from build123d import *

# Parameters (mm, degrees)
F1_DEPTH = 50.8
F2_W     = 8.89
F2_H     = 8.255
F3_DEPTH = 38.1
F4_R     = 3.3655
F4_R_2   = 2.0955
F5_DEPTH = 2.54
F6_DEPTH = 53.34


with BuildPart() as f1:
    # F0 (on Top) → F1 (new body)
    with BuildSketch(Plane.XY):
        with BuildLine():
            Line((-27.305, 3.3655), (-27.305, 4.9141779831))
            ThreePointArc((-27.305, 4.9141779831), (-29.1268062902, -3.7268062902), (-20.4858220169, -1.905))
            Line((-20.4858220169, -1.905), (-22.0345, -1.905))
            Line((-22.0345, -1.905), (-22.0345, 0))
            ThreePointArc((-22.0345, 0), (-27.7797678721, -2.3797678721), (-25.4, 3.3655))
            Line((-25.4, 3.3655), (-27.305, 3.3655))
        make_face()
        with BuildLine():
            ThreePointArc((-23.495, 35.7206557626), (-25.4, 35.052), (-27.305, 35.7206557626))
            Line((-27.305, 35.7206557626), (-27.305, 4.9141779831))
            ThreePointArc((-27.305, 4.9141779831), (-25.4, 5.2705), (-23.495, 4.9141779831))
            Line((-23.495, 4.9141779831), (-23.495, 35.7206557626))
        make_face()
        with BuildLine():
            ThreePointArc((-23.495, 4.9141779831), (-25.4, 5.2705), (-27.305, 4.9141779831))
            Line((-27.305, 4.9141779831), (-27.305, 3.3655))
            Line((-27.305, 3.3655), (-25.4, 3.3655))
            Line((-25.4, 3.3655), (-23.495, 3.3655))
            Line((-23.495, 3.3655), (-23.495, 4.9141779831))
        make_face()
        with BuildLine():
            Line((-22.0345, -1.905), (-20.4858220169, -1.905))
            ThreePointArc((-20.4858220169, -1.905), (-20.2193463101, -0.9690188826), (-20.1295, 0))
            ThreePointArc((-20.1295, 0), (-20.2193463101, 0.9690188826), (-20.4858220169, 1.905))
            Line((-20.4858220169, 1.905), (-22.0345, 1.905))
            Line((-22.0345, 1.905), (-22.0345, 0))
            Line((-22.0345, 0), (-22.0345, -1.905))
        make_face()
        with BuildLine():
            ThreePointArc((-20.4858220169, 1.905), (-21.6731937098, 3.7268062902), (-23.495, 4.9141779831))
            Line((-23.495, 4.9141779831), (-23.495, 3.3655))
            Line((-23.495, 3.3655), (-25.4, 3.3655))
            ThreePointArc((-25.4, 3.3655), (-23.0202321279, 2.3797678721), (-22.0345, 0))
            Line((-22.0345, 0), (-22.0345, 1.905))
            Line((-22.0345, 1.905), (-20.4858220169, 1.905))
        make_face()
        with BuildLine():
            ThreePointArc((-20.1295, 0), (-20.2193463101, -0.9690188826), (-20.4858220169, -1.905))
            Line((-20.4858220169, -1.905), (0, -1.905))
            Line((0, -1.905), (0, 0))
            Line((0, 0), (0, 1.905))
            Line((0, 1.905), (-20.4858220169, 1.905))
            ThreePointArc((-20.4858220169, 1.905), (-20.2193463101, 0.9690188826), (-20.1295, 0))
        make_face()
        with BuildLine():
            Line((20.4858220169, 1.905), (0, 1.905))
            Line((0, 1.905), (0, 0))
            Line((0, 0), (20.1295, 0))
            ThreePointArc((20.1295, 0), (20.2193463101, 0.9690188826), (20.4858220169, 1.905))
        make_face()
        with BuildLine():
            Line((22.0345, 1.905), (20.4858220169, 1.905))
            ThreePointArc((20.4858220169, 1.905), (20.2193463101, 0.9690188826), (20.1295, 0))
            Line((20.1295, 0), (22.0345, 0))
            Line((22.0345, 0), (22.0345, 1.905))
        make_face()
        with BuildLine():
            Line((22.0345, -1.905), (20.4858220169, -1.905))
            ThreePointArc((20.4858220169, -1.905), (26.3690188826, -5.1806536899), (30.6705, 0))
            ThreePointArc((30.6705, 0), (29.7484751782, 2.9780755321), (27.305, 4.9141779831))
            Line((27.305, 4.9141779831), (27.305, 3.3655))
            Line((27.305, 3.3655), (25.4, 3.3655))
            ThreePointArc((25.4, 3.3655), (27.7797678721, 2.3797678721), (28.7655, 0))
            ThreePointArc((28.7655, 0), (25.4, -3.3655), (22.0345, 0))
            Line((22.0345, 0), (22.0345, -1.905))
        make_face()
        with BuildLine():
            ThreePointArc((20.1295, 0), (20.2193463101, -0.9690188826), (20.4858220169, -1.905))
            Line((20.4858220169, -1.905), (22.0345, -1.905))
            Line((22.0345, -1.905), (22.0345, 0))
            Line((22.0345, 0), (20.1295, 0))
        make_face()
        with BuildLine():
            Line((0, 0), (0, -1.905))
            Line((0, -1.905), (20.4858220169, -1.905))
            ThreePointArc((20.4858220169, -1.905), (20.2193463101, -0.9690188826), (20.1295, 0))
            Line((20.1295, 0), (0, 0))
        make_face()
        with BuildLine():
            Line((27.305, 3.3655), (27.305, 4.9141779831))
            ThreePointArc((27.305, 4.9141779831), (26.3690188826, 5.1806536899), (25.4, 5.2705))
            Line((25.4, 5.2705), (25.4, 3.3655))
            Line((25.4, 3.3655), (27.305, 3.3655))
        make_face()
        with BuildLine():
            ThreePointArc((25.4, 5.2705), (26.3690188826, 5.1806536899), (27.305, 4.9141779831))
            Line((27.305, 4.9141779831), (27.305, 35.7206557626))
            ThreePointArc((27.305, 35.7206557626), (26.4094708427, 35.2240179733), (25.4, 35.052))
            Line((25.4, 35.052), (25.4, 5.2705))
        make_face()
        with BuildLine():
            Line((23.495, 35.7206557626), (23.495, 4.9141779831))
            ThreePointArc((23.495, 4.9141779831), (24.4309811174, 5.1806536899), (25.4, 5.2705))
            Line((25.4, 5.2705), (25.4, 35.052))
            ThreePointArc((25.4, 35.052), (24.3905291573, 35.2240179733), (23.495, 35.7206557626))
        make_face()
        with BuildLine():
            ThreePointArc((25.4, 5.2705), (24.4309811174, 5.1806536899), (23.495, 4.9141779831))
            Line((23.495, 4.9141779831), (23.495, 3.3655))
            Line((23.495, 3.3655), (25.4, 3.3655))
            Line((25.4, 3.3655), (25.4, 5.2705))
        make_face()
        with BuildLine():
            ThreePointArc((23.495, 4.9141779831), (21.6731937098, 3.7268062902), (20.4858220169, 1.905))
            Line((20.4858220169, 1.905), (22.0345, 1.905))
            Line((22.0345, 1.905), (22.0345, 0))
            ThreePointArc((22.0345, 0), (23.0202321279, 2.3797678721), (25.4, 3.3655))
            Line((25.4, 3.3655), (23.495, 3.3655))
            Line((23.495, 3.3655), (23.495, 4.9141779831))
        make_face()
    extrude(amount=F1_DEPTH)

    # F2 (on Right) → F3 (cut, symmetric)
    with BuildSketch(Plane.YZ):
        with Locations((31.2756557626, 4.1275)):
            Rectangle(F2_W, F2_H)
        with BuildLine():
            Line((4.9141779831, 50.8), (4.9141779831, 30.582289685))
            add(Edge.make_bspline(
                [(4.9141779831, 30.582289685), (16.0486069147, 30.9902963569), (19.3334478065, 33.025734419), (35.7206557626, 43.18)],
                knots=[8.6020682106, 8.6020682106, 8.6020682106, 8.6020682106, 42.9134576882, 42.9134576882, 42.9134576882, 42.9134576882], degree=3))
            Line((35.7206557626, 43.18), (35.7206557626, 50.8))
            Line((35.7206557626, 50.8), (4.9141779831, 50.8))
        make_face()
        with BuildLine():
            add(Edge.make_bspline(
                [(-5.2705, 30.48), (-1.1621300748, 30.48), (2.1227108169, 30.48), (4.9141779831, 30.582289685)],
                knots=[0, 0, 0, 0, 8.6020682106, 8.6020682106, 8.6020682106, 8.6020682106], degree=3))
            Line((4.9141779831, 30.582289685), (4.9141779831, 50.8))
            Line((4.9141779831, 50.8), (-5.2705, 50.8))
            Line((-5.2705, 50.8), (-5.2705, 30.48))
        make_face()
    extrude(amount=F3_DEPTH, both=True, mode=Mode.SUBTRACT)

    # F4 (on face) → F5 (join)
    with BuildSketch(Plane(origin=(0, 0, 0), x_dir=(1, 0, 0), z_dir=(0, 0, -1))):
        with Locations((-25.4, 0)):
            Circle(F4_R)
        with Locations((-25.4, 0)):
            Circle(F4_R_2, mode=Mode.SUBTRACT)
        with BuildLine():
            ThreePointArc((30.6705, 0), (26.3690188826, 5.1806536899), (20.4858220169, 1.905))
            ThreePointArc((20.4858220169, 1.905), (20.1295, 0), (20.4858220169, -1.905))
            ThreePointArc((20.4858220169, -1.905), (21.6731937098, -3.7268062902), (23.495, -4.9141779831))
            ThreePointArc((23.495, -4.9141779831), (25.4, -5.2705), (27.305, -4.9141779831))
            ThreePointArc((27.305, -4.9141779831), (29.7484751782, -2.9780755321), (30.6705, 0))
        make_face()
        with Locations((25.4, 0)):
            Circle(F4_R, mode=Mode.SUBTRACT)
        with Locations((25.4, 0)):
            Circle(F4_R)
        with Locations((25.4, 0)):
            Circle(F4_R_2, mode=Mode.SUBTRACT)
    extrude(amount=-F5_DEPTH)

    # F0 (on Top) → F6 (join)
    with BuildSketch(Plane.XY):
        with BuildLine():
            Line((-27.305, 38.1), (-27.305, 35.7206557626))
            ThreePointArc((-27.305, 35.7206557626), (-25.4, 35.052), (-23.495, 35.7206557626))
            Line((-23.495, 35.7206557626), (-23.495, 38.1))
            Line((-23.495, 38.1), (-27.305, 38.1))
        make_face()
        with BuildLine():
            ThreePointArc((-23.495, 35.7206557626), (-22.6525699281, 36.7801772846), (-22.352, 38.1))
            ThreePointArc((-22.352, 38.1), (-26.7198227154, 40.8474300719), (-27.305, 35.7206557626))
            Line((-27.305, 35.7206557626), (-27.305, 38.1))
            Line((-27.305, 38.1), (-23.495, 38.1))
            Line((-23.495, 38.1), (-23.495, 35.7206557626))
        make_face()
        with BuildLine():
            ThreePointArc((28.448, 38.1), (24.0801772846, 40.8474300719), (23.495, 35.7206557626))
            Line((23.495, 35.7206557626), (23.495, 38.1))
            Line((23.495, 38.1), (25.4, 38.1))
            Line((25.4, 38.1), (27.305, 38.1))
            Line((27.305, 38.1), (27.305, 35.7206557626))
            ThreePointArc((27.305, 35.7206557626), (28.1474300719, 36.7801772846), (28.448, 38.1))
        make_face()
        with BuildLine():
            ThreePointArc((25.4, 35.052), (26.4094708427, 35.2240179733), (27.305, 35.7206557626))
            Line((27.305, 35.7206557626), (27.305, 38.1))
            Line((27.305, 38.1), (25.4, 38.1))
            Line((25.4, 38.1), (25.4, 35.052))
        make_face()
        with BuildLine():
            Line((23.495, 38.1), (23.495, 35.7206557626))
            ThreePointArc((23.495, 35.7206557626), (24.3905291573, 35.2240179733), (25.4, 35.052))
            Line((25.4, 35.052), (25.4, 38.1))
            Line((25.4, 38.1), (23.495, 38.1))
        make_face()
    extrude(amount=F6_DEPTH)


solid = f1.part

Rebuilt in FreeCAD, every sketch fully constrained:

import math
import FreeCAD as App
import Part
import Sketcher

V = App.Vector
Q = App.Units.Quantity

doc = App.newDocument("Part")
body = doc.addObject("PartDesign::Body", "Body")

sketch1 = body.newObject("Sketcher::SketchObject", "Sketch")
sketch1.AttachmentSupport = (doc.getObject("XY_Plane"), [""])
sketch1.MapMode = "FlatFace"
sketch1.addGeometry([
    Part.ArcOfCircle(Part.Circle(V(-25.4, 0, 0), V(0, 0, 1), 5.3), math.radians(111), math.radians(339)),
    Part.LineSegment(V(-20.5, -1.9, 0), V(20.5, -1.9, 0)),
    Part.ArcOfCircle(Part.Circle(V(25.4, 0, 0), V(0, 0, 1), 5.3), math.radians(-159), math.radians(0)),
    Part.ArcOfCircle(Part.Circle(V(25.4, 0, 0), V(0, 0, 1), 5.3), math.radians(0), math.radians(69)),
    Part.LineSegment(V(27.3, 4.9, 0), V(27.3, 35.7, 0)),
    Part.ArcOfCircle(Part.Circle(V(25.4, 38.1, 0), V(0, 0, 1), 3), math.radians(-90), math.radians(-51)),
    Part.ArcOfCircle(Part.Circle(V(25.4, 38.1, 0), V(0, 0, 1), 3), math.radians(-129), math.radians(-90)),
    Part.LineSegment(V(23.5, 35.7, 0), V(23.5, 4.9, 0)),
    Part.ArcOfCircle(Part.Circle(V(25.4, 0, 0), V(0, 0, 1), 5.3), math.radians(111), math.radians(159)),
    Part.LineSegment(V(20.5, 1.9, 0), V(-20.5, 1.9, 0)),
    Part.ArcOfCircle(Part.Circle(V(-25.4, 0, 0), V(0, 0, 1), 5.3), math.radians(21), math.radians(69)),
    Part.LineSegment(V(-23.5, 4.9, 0), V(-23.5, 35.7, 0)),
    Part.ArcOfCircle(Part.Circle(V(-25.4, 38.1, 0), V(0, 0, 1), 3), math.radians(-129), math.radians(-51)),
    Part.LineSegment(V(-27.3, 35.7, 0), V(-27.3, 4.9, 0)),
    Part.ArcOfCircle(Part.Circle(V(25.4, 0, 0), V(0, 0, 1), 3.4), math.radians(0), math.radians(90)),
    Part.ArcOfCircle(Part.Circle(V(25.4, 0, 0), V(0, 0, 1), 3.4), math.radians(180), math.radians(360)),
    Part.ArcOfCircle(Part.Circle(V(25.4, 0, 0), V(0, 0, 1), 3.4), math.radians(90), math.radians(180)),
    Part.ArcOfCircle(Part.Circle(V(-25.4, 0, 0), V(0, 0, 1), 3.4), math.radians(90), math.radians(360)),
    Part.ArcOfCircle(Part.Circle(V(-25.4, 0, 0), V(0, 0, 1), 3.4), math.radians(0), math.radians(90)),
], False)
sketch1.addConstraint([
    Sketcher.Constraint("Coincident", 0, 2, 1, 1),
    Sketcher.Constraint("Coincident", 1, 2, 2, 1),
    Sketcher.Constraint("Tangent", 2, 2, 3, 1),
    Sketcher.Constraint("Coincident", 3, 2, 4, 1),
    Sketcher.Constraint("Coincident", 4, 2, 5, 2),
    Sketcher.Constraint("Tangent", 5, 1, 6, 2),
    Sketcher.Constraint("Coincident", 6, 1, 7, 1),
    Sketcher.Constraint("Coincident", 7, 2, 8, 1),
    Sketcher.Constraint("Coincident", 8, 2, 9, 1),
    Sketcher.Constraint("Coincident", 9, 2, 10, 1),
    Sketcher.Constraint("Coincident", 10, 2, 11, 1),
    Sketcher.Constraint("Coincident", 11, 2, 12, 2),
    Sketcher.Constraint("Coincident", 12, 1, 13, 1),
    Sketcher.Constraint("Coincident", 13, 2, 0, 1),
    Sketcher.Constraint("Tangent", 14, 1, 15, 2),
    Sketcher.Constraint("Tangent", 15, 1, 16, 2),
    Sketcher.Constraint("Tangent", 16, 1, 14, 2),
    Sketcher.Constraint("Tangent", 17, 1, 18, 2),
    Sketcher.Constraint("Coincident", 18, 1, 17, 2),
    Sketcher.Constraint("Horizontal", 1),
    Sketcher.Constraint("Vertical", 4),
    Sketcher.Constraint("Vertical", 7),
    Sketcher.Constraint("Horizontal", 9),
    Sketcher.Constraint("Vertical", 11),
    Sketcher.Constraint("Vertical", 13),
    Sketcher.Constraint("Coincident", 8, 3, 2, 3),
    Sketcher.Constraint("Coincident", 10, 3, 0, 3),
    Sketcher.Constraint("Coincident", 14, 3, 2, 3),
    Sketcher.Constraint("Coincident", 17, 3, 0, 3),
    Sketcher.Constraint("Equal", 0, 2),
    Sketcher.Constraint("Equal", 2, 3),
    Sketcher.Constraint("Equal", 5, 6),
    Sketcher.Constraint("Equal", 3, 8),
    Sketcher.Constraint("Equal", 8, 10),
    Sketcher.Constraint("Equal", 6, 12),
    Sketcher.Constraint("Equal", 16, 17),
    Sketcher.Constraint("Symmetric", 0, 3, 2, 3, -1, 1),
    Sketcher.Constraint("Symmetric", 5, 3, 12, 3, -2),
    Sketcher.Constraint("Symmetric", 7, 2, 10, 2, -2),
    Sketcher.Constraint("PointOnObject", 2, 2, -1),
    Sketcher.Constraint("PointOnObject", 14, 1, -1),
    Sketcher.Constraint("PointOnObject", 15, 1, -1),
    Sketcher.Constraint("PointOnObject", 18, 1, -1),
    Sketcher.Constraint("Horizontal", 4, 2, 6, 1),
    Sketcher.Constraint("Horizontal", 3, 2, 7, 2),
    Sketcher.Constraint("Horizontal", 11, 2, 12, 1),
    Sketcher.Constraint("Vertical", 16, 3, 5, 1),
    Sketcher.Constraint("Vertical", 1, 2, 8, 2),
    Sketcher.Constraint("Vertical", 5, 1, 16, 1),
    Sketcher.Constraint("Vertical", 18, 3, 17, 1),
    Sketcher.Constraint("Radius", 5, Q("0.12 in")),
    Sketcher.Constraint("DistanceX", 0, 3, -1, 1, Q("1 in")),
    Sketcher.Constraint("DistanceY", -1, 1, 5, 3, Q("1.5 in")),
    Sketcher.Constraint("Radius", 0, Q("0.2075 in")),
    Sketcher.Constraint("Radius", 14, Q("0.1325 in")),
    Sketcher.Constraint("DistanceX", 6, 1, 4, 2, Q("0.15 in")),
    Sketcher.Constraint("DistanceY", 1, 2, 8, 2, Q("0.15 in")),
])
pad1 = body.newObject("PartDesign::Pad", "Pad")
pad1.Profile = sketch1
pad1.Length = Q("2 in")

sketch2 = body.newObject("Sketcher::SketchObject", "Sketch001")
sketch2.AttachmentSupport = (doc.getObject("YZ_Plane"), [""])
sketch2.MapMode = "FlatFace"
sketch2.addGeometry([
    Part.LineSegment(V(26.830656, 8.255, 0), V(26.830656, 0, 0)),
    Part.LineSegment(V(26.830656, 0, 0), V(35.720656, 0, 0)),
    Part.LineSegment(V(35.720656, 0, 0), V(35.720656, 8.255, 0)),
    Part.LineSegment(V(35.720656, 8.255, 0), V(26.830656, 8.255, 0)),
    Part.BSplineCurve([V(4.914178, 30.58229, 0), V(16.048607, 30.990296, 0), V(19.333448, 33.025734, 0), V(35.720656, 43.18, 0)], [4, 4], [8.602068211, 42.913457688], False, 3, [1, 1, 1, 1], False),
    Part.LineSegment(V(35.720656, 43.18, 0), V(35.720656, 50.8, 0)),
    Part.LineSegment(V(35.720656, 50.8, 0), V(-5.2705, 50.8, 0)),
    Part.LineSegment(V(-5.2705, 50.8, 0), V(-5.2705, 30.48, 0)),
    Part.BSplineCurve([V(-5.2705, 30.48, 0), V(-1.16213, 30.48, 0), V(2.122711, 30.48, 0), V(4.914178, 30.58229, 0)], [4, 4], [0, 8.602068211], False, 3, [1, 1, 1, 1], False),
], False)
sketch2.addConstraint([
    Sketcher.Constraint("Block", 4),
    Sketcher.Constraint("Block", 8),
    Sketcher.Constraint("Coincident", 0, 2, 1, 1),
    Sketcher.Constraint("Coincident", 1, 2, 2, 1),
    Sketcher.Constraint("Coincident", 2, 2, 3, 1),
    Sketcher.Constraint("Coincident", 3, 2, 0, 1),
    Sketcher.Constraint("Coincident", 4, 2, 5, 1),
    Sketcher.Constraint("Coincident", 5, 2, 6, 1),
    Sketcher.Constraint("Coincident", 6, 2, 7, 1),
    Sketcher.Constraint("Coincident", 7, 2, 8, 1),
    Sketcher.Constraint("Vertical", 0),
    Sketcher.Constraint("Horizontal", 1),
    Sketcher.Constraint("Vertical", 2),
    Sketcher.Constraint("Horizontal", 3),
    Sketcher.Constraint("Vertical", 5),
    Sketcher.Constraint("Horizontal", 6),
    Sketcher.Constraint("Vertical", 7),
    Sketcher.Constraint("PointOnObject", 0, 2, -1),
    Sketcher.Constraint("Vertical", 2, 2, 5, 2),
    Sketcher.Constraint("DistanceY", 5, 1, 5, 2, Q("0.3 in")),
    Sketcher.Constraint("DistanceX", 1, 1, 1, 2, Q("0.35 in")),
    Sketcher.Constraint("DistanceY", 0, 2, 0, 1, Q("0.325 in")),
])
pocket1 = body.newObject("PartDesign::Pocket", "Pocket")
pocket1.Profile = sketch2
pocket1.Length = Q("3 in")
pocket1.Midplane = True

sketch3 = body.newObject("Sketcher::SketchObject", "Sketch002")
sketch3.AttachmentSupport = (doc.getObject("XY_Plane"), [""])
sketch3.MapMode = "FlatFace"
sketch3.addGeometry([
    Part.Circle(V(-25.4, 0, 0), V(0, 0, 1), 3.4),
    Part.Circle(V(-25.4, 0, 0), V(0, 0, 1), 2.1),
    Part.ArcOfCircle(Part.Circle(V(25.4, 0, 0), V(0, 0, 1), 5.3), math.radians(-159), math.radians(0)),
    Part.ArcOfCircle(Part.Circle(V(25.4, 0, 0), V(0, 0, 1), 5.3), math.radians(159), math.radians(201)),
    Part.ArcOfCircle(Part.Circle(V(25.4, 0, 0), V(0, 0, 1), 5.3), math.radians(111), math.radians(159)),
    Part.ArcOfCircle(Part.Circle(V(25.4, 0, 0), V(0, 0, 1), 5.3), math.radians(69), math.radians(111)),
    Part.ArcOfCircle(Part.Circle(V(25.4, 0, 0), V(0, 0, 1), 5.3), math.radians(0), math.radians(69)),
    Part.Circle(V(25.4, 0, 0), V(0, 0, 1), 2.1),
], False)
sketch3.addConstraint([
    Sketcher.Constraint("Tangent", 2, 1, 3, 2),
    Sketcher.Constraint("Tangent", 3, 1, 4, 2),
    Sketcher.Constraint("Tangent", 4, 1, 5, 2),
    Sketcher.Constraint("Tangent", 5, 1, 6, 2),
    Sketcher.Constraint("Tangent", 6, 1, 2, 2),
    Sketcher.Constraint("Coincident", 1, 3, 0, 3),
    Sketcher.Constraint("Coincident", 4, 3, 2, 3),
    Sketcher.Constraint("Coincident", 7, 3, 2, 3),
    Sketcher.Constraint("Equal", 1, 7),
    Sketcher.Constraint("Symmetric", 0, 3, 2, 3, -1, 1),
    Sketcher.Constraint("Symmetric", 2, 1, 3, 1, -1),
    Sketcher.Constraint("PointOnObject", 6, 1, -1),
    Sketcher.Constraint("Horizontal", 4, 1, 5, 1),
    Sketcher.Constraint("Diameter", 0, Q("0.265 in")),
    Sketcher.Constraint("Diameter", 1, Q("0.165 in")),
    Sketcher.Constraint("DistanceX", 0, 3, -1, 1, Q("1 in")),
    Sketcher.Constraint("Radius", 2, Q("0.2075 in")),
    Sketcher.Constraint("DistanceY", 2, 1, 3, 1, Q("0.15 in")),
    Sketcher.Constraint("DistanceX", 4, 1, 5, 1, Q("0.15 in")),
])
pad2 = body.newObject("PartDesign::Pad", "Pad001")
pad2.Profile = sketch3
pad2.Length = Q("0.1 in")

sketch4 = body.newObject("Sketcher::SketchObject", "Sketch003")
sketch4.AttachmentSupport = (doc.getObject("XY_Plane"), [""])
sketch4.MapMode = "FlatFace"
sketch4.addGeometry([
    Part.ArcOfCircle(Part.Circle(V(-25.4, 38.1, 0), V(0, 0, 1), 3), math.radians(-129), math.radians(0)),
    Part.ArcOfCircle(Part.Circle(V(-25.4, 38.1, 0), V(0, 0, 1), 3), math.radians(0), math.radians(231)),
    Part.ArcOfCircle(Part.Circle(V(25.4, 38.1, 0), V(0, 0, 1), 3), math.radians(0), math.radians(231)),
    Part.ArcOfCircle(Part.Circle(V(25.4, 38.1, 0), V(0, 0, 1), 3), math.radians(-129), math.radians(-90)),
    Part.ArcOfCircle(Part.Circle(V(25.4, 38.1, 0), V(0, 0, 1), 3), math.radians(-90), math.radians(-51)),
    Part.ArcOfCircle(Part.Circle(V(25.4, 38.1, 0), V(0, 0, 1), 3), math.radians(-51), math.radians(0)),
], False)
sketch4.addConstraint([
    Sketcher.Constraint("Tangent", 0, 1, 1, 2),
    Sketcher.Constraint("Coincident", 1, 1, 0, 2),
    Sketcher.Constraint("Tangent", 2, 2, 3, 1),
    Sketcher.Constraint("Tangent", 3, 2, 4, 1),
    Sketcher.Constraint("Tangent", 4, 2, 5, 1),
    Sketcher.Constraint("Tangent", 5, 2, 2, 1),
    Sketcher.Constraint("Equal", 1, 2),
    Sketcher.Constraint("Equal", 2, 3),
    Sketcher.Constraint("Symmetric", 0, 3, 2, 3, -2),
    Sketcher.Constraint("Horizontal", 5, 3, 1, 1),
    Sketcher.Constraint("Horizontal", 0, 1, 2, 2),
    Sketcher.Constraint("Horizontal", 2, 2, 4, 2),
    Sketcher.Constraint("Horizontal", 1, 1, 5, 2),
    Sketcher.Constraint("Vertical", 5, 3, 3, 2),
    Sketcher.Constraint("Radius", 0, Q("0.12 in")),
    Sketcher.Constraint("DistanceX", 0, 3, -1, 1, Q("1 in")),
    Sketcher.Constraint("DistanceY", -1, 1, 0, 3, Q("1.5 in")),
    Sketcher.Constraint("DistanceX", 0, 1, -1, 1, Q("1.075 in")),
])
pad3 = body.newObject("PartDesign::Pad", "Pad002")
pad3.Profile = sketch4
pad3.Length = Q("2.1 in")

doc.recompute()
